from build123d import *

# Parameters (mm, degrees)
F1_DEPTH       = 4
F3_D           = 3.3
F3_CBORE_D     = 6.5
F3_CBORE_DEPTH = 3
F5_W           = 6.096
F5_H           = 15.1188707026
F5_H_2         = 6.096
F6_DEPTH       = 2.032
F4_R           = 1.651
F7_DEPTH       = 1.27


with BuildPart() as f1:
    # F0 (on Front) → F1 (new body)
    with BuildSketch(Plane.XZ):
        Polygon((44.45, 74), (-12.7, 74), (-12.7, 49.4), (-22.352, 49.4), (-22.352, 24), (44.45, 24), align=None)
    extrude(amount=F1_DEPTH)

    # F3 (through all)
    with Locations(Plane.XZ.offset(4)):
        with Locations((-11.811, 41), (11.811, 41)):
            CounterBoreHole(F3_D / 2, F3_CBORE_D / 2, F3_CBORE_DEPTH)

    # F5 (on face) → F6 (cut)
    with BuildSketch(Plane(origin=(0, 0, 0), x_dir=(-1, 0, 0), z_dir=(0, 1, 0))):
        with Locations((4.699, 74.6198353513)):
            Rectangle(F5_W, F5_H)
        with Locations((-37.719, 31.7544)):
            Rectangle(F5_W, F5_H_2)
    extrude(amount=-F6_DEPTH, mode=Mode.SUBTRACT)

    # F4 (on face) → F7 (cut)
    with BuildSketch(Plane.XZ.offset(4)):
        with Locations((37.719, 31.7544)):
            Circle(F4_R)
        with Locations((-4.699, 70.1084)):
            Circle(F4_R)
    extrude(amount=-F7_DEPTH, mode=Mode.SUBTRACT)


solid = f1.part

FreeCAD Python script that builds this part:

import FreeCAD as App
import Part
import Sketcher
from FreeCAD import Vector
Q = App.Units.Quantity

doc = App.newDocument("Part")
body = doc.addObject("PartDesign::Body", "Body")

# Sketch on XZ plane
sketch1 = body.newObject("Sketcher::SketchObject", "Sketch")
sketch1.AttachmentSupport = (doc.getObject("XZ_Plane"), [""])
sketch1.MapMode = "FlatFace"
sketch1.addGeometry(Part.LineSegment(Vector(44.45, 74, 0), Vector(-12.7, 74, 0)), False)
sketch1.addGeometry(Part.LineSegment(Vector(-12.7, 74, 0), Vector(-12.7, 49.4, 0)), False)
sketch1.addGeometry(Part.LineSegment(Vector(-12.7, 49.4, 0), Vector(-22.352, 49.4, 0)), False)
sketch1.addGeometry(Part.LineSegment(Vector(-22.352, 49.4, 0), Vector(-22.352, 24, 0)), False)
sketch1.addGeometry(Part.LineSegment(Vector(-22.352, 24, 0), Vector(44.45, 24, 0)), False)
sketch1.addGeometry(Part.LineSegment(Vector(44.45, 24, 0), Vector(44.45, 74, 0)), False)
sketch1.addConstraint(Sketcher.Constraint("Coincident", 0, 2, 1, 1))
sketch1.addConstraint(Sketcher.Constraint("Coincident", 1, 2, 2, 1))
sketch1.addConstraint(Sketcher.Constraint("Coincident", 2, 2, 3, 1))
sketch1.addConstraint(Sketcher.Constraint("Coincident", 3, 2, 4, 1))
sketch1.addConstraint(Sketcher.Constraint("Coincident", 4, 2, 5, 1))
sketch1.addConstraint(Sketcher.Constraint("Coincident", 5, 2, 0, 1))
sketch1.addConstraint(Sketcher.Constraint("Horizontal", 0))
sketch1.addConstraint(Sketcher.Constraint("Vertical", 1))
sketch1.addConstraint(Sketcher.Constraint("Horizontal", 2))
sketch1.addConstraint(Sketcher.Constraint("Vertical", 3))
sketch1.addConstraint(Sketcher.Constraint("Horizontal", 4))
sketch1.addConstraint(Sketcher.Constraint("Vertical", 5))
sketch1.addConstraint(Sketcher.Constraint("DistanceY", 3, 2, 3, 1, Q("1 in")))
sketch1.addConstraint(Sketcher.Constraint("DistanceX", 0, 2, 0, 1, Q("2.25 in")))
sketch1.addConstraint(Sketcher.Constraint("DistanceX", 2, 2, 2, 1, Q("0.38 in")))
sketch1.addConstraint(Sketcher.Constraint("DistanceX", 0, 2, -1, 1, Q("0.5 in")))
sketch1.addConstraint(Sketcher.Constraint("DistanceY", 1, 2, 1, 1, 24.6))
sketch1.addConstraint(Sketcher.Constraint("DistanceY", -1, 1, 0, 2, 74.0))
pad1 = body.newObject("PartDesign::Pad", "Pad")
pad1.Profile = sketch1
pad1.Length = 4

# Sketch on XZ plane
sketch2 = body.newObject("Sketcher::SketchObject", "Sketch001")
sketch2.AttachmentSupport = (doc.getObject("XZ_Plane"), [""])
sketch2.MapMode = "FlatFace"
sketch2.AttachmentOffset = App.Placement(Vector(0, 0, 4), App.Rotation())
sketch2.addGeometry(Part.Circle(Vector(-11.811, 41, 0), Vector(0, 0, 1), 1.65), False)
sketch2.addGeometry(Part.Circle(Vector(11.811, 41, 0), Vector(0, 0, 1), 1.65), False)
sketch2.addConstraint(Sketcher.Constraint("Equal", 0, 1))
sketch2.addConstraint(Sketcher.Constraint("Symmetric", 0, 3, 1, 3, -2))
sketch2.addConstraint(Sketcher.Constraint("Diameter", 0, 3.3))
sketch2.addConstraint(Sketcher.Constraint("DistanceX", 0, 3, 1, 3, Q("0.93 in")))
sketch2.addConstraint(Sketcher.Constraint("DistanceY", -1, 1, 0, 3, 41.0))
doc.recompute()
hole = body.newObject("PartDesign::Hole", "Hole")
hole.Profile = sketch2
hole.ThreadType = "None"
hole.Diameter = 3.3
hole.DepthType = "ThroughAll"
hole.HoleCutType = "Counterbore"
hole.HoleCutDiameter = 6.5
hole.HoleCutDepth = 3

# Sketch on XZ plane
sketch3 = body.newObject("Sketcher::SketchObject", "Sketch002")
sketch3.AttachmentSupport = (doc.getObject("XZ_Plane"), [""])
sketch3.MapMode = "FlatFace"
sketch3.addGeometry(Part.LineSegment(Vector(-1.651, 82.179271, 0), Vector(-1.651, 67.0604, 0)), False)
sketch3.addGeometry(Part.LineSegment(Vector(-1.651, 67.0604, 0), Vector(-7.747, 67.0604, 0)), False)
sketch3.addGeometry(Part.LineSegment(Vector(-7.747, 67.0604, 0), Vector(-7.747, 82.179271, 0)), False)
sketch3.addGeometry(Part.LineSegment(Vector(-7.747, 82.179271, 0), Vector(-1.651, 82.179271, 0)), False)
sketch3.addGeometry(Part.LineSegment(Vector(40.767, 34.8024, 0), Vector(40.767, 28.7064, 0)), False)
sketch3.addGeometry(Part.LineSegment(Vector(40.767, 28.7064, 0), Vector(34.671, 28.7064, 0)), False)
sketch3.addGeometry(Part.LineSegment(Vector(34.671, 28.7064, 0), Vector(34.671, 34.8024, 0)), False)
sketch3.addGeometry(Part.LineSegment(Vector(34.671, 34.8024, 0), Vector(40.767, 34.8024, 0)), False)
sketch3.addConstraint(Sketcher.Constraint("Coincident", 0, 2, 1, 1))
sketch3.addConstraint(Sketcher.Constraint("Coincident", 1, 2, 2, 1))
sketch3.addConstraint(Sketcher.Constraint("Coincident", 2, 2, 3, 1))
sketch3.addConstraint(Sketcher.Constraint("Coincident", 3, 2, 0, 1))
sketch3.addConstraint(Sketcher.Constraint("Coincident", 4, 2, 5, 1))
sketch3.addConstraint(Sketcher.Constraint("Coincident", 5, 2, 6, 1))
sketch3.addConstraint(Sketcher.Constraint("Coincident", 6, 2, 7, 1))
sketch3.addConstraint(Sketcher.Constraint("Coincident", 7, 2, 4, 1))
sketch3.addConstraint(Sketcher.Constraint("Vertical", 0))
sketch3.addConstraint(Sketcher.Constraint("Horizontal", 1))
sketch3.addConstraint(Sketcher.Constraint("Vertical", 2))
sketch3.addConstraint(Sketcher.Constraint("Horizontal", 3))
sketch3.addConstraint(Sketcher.Constraint("Vertical", 4))
sketch3.addConstraint(Sketcher.Constraint("Horizontal", 5))
sketch3.addConstraint(Sketcher.Constraint("Vertical", 6))
sketch3.addConstraint(Sketcher.Constraint("Horizontal", 7))
sketch3.addConstraint(Sketcher.Constraint("Equal", 3, 5))
sketch3.addConstraint(Sketcher.Constraint("Equal", 7, 4))
sketch3.addConstraint(Sketcher.Constraint("DistanceX", 1, 2, 1, 1, Q("0.24 in")))
sketch3.addConstraint(Sketcher.Constraint("DistanceX", 0, 2, 4, 2, Q("1.67 in")))
sketch3.addConstraint(Sketcher.Constraint("DistanceY", 4, 2, 0, 2, Q("1.51 in")))
sketch3.addConstraint(Sketcher.Constraint("DistanceX", 0, 2, -1, 1, Q("0.065 in")))
sketch3.addConstraint(Sketcher.Constraint("DistanceY", 0, 2, 0, 1, 15.118871))
sketch3.addConstraint(Sketcher.Constraint("DistanceY", -1, 1, 0, 2, 67.0604))
pocket1 = body.newObject("PartDesign::Pocket", "Pocket")
pocket1.Profile = sketch3
pocket1.Length = Q("0.08 in")
pocket1.Reversed = True

# Sketch on XZ plane
sketch4 = body.newObject("Sketcher::SketchObject", "Sketch003")
sketch4.AttachmentSupport = (doc.getObject("XZ_Plane"), [""])
sketch4.MapMode = "FlatFace"
sketch4.AttachmentOffset = App.Placement(Vector(0, 0, 4), App.Rotation())
sketch4.addGeometry(Part.Circle(Vector(37.719, 31.7544, 0), Vector(0, 0, 1), 1.651), False)
sketch4.addGeometry(Part.Circle(Vector(-4.699, 70.1084, 0), Vector(0, 0, 1), 1.651), False)
sketch4.addConstraint(Sketcher.Constraint("Equal", 0, 1))
sketch4.addConstraint(Sketcher.Constraint("Diameter", 0, Q("0.13 in")))
sketch4.addConstraint(Sketcher.Constraint("DistanceX", 1, 3, 0, 3, Q("1.67 in")))
sketch4.addConstraint(Sketcher.Constraint("DistanceY", 0, 3, 1, 3, Q("1.51 in")))
sketch4.addConstraint(Sketcher.Constraint("DistanceX", -1, 1, 0, 3, Q("1.485 in")))
sketch4.addConstraint(Sketcher.Constraint("DistanceY", -1, 1, 0, 3, 31.7544))
pocket2 = body.newObject("PartDesign::Pocket", "Pocket001")
pocket2.Profile = sketch4
pocket2.Length = Q("0.05 in")

doc.recompute()
